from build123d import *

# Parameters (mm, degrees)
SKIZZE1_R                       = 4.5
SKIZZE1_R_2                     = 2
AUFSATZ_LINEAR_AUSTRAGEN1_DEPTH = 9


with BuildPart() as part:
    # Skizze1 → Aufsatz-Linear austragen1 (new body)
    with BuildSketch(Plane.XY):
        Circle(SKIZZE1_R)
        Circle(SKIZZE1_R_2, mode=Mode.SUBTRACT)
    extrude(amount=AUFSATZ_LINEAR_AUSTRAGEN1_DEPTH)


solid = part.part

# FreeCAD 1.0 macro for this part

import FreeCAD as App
import Part
import Sketcher
from FreeCAD import Vector

doc = App.newDocument("Part")
body = doc.addObject("PartDesign::Body", "Body")

# Sketch on XY plane
sketch1 = body.newObject("Sketcher::SketchObject", "Sketch")
sketch1.AttachmentSupport = (doc.getObject("XY_Plane"), [""])
sketch1.MapMode = "FlatFace"
sketch1.addGeometry(Part.Circle(Vector(0, 0, 0), Vector(0, 0, 1), 4.5), False)
sketch1.addGeometry(Part.Circle(Vector(0, 0, 0), Vector(0, 0, 1), 2), False)
sketch1.addConstraint(Sketcher.Constraint("Coincident", 0, 3, -1, 1))
sketch1.addConstraint(Sketcher.Constraint("Coincident", 1, 3, -1, 1))
sketch1.addConstraint(Sketcher.Constraint("Diameter", 0, 9.0))
sketch1.addConstraint(Sketcher.Constraint("Diameter", 1, 4.0))
pad1 = body.newObject("PartDesign::Pad", "Pad")
pad1.Profile = sketch1
pad1.Length = 9

doc.recompute()
